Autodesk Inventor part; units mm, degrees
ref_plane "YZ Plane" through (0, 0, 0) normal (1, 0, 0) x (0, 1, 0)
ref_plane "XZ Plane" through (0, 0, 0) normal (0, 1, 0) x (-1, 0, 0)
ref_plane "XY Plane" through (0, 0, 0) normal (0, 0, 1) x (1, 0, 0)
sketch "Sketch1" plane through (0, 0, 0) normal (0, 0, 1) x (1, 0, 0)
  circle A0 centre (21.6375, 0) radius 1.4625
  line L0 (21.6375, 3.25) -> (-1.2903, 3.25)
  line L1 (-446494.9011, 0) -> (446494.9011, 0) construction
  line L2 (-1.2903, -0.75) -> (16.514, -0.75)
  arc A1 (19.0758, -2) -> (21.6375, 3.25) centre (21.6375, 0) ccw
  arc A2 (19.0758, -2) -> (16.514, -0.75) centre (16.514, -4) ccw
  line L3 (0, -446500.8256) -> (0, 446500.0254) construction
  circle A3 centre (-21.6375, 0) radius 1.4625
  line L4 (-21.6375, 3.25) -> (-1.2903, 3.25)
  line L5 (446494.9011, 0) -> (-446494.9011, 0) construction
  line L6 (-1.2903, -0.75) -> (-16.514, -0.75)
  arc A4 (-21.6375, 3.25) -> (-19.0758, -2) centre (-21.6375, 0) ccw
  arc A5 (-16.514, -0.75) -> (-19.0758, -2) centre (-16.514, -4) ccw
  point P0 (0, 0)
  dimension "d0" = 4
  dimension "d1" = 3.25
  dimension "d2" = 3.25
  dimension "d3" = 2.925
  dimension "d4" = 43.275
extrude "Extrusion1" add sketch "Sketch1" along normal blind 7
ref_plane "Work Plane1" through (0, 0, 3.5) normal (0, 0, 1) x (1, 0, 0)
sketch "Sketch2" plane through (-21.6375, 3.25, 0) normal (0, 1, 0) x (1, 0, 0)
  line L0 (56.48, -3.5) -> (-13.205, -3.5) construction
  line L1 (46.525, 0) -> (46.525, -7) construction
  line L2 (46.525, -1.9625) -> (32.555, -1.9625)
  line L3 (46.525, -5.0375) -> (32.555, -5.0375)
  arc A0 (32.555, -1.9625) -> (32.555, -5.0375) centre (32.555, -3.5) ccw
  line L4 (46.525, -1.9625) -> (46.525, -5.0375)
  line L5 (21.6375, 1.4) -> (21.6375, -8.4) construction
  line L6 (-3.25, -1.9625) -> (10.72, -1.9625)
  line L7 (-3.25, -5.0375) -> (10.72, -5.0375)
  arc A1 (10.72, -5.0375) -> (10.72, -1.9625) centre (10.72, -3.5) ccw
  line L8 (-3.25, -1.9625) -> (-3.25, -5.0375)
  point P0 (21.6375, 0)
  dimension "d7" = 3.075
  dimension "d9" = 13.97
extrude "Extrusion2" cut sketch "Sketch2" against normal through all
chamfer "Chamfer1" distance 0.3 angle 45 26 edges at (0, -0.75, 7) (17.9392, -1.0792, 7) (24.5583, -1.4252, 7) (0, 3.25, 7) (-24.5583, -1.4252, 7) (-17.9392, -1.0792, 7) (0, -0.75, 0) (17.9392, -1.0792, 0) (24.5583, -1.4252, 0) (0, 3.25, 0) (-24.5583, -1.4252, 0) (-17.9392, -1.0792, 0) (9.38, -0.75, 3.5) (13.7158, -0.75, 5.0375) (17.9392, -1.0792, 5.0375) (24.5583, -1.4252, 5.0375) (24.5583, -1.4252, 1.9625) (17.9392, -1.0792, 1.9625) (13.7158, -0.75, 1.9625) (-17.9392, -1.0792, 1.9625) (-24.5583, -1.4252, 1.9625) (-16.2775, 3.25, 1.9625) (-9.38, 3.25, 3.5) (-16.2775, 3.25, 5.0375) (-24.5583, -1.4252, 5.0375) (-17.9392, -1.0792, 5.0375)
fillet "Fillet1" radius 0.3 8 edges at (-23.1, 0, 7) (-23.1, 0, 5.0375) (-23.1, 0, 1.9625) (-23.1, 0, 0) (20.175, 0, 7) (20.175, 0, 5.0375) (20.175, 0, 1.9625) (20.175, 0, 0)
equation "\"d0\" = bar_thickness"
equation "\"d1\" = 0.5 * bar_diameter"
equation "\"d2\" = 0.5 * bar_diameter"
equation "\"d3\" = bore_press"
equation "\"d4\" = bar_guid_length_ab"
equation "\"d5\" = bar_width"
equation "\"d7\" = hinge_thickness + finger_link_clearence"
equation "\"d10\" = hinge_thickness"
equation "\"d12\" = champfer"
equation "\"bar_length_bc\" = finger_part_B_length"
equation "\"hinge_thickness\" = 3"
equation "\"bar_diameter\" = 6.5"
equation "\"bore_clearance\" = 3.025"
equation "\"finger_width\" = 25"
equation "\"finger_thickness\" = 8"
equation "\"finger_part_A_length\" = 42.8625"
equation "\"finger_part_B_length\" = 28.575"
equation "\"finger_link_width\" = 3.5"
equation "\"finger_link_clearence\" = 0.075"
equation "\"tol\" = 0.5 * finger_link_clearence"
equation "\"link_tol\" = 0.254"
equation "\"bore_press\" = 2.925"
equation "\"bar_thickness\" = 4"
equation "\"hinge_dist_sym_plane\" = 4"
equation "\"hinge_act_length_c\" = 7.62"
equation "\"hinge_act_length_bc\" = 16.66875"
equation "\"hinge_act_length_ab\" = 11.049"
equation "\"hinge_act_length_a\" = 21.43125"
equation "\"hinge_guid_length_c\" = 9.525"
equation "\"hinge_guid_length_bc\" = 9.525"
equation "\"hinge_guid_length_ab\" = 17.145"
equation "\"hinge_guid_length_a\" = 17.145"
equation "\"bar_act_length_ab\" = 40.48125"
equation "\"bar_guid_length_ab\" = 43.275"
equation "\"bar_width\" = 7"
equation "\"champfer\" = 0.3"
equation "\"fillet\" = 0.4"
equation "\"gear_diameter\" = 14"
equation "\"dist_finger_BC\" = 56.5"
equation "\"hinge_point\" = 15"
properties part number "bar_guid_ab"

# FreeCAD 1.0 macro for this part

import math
import FreeCAD as App
import Part
import Sketcher
from FreeCAD import Vector


def edges_at(feature, points):
    """Names of the edges that pass closest to the given points."""
    edges = feature.Shape.Edges
    near = lambda p: min(range(len(edges)), key=lambda i: edges[i].distToShape(Part.Vertex(*p))[0])
    return sorted({f"Edge{near(p) + 1}" for p in points})

doc = App.newDocument("Part")
params = doc.addObject("Spreadsheet::Sheet", "Params")
for row, (alias, value) in enumerate([
    ("sketch1_radius", "3.25 mm"),
    ("pad1_length", "7 mm"),
    ("sketch2_width", "13.97 mm"),
    ("chamfer_size", "0.3 mm"),
    ("fillet_radius", "0.3 mm"),
], start=1):
    params.set(f"A{row}", alias)
    params.set(f"B{row}", "=" + value)
    params.setAlias(f"B{row}", alias)

body = doc.addObject("PartDesign::Body", "Body")

sketch1 = doc.addObject("Sketcher::SketchObject", "Sketch")
body.addObject(sketch1)
sketch1.AttachmentSupport = (doc.XY_Plane, [""])
sketch1.MapMode = "FlatFace"
sketch1.addGeometry([
    Part.ArcOfCircle(Part.Circle(Vector(21.6, 0, 0), Vector(0, 0, 1), 3.2), math.radians(-142), math.radians(90)),
    Part.LineSegment(Vector(21.6, 3.2, 0), Vector(-21.6, 3.2, 0)),
    Part.ArcOfCircle(Part.Circle(Vector(-21.6, 0, 0), Vector(0, 0, 1), 3.2), math.radians(90), math.radians(322)),
    Part.ArcOfCircle(Part.Circle(Vector(-16.5, -4, 0), Vector(0, 0, 1), 3.2), math.radians(90), math.radians(142)),
    Part.LineSegment(Vector(-16.5, -0.8, 0), Vector(16.5, -0.8, 0)),
    Part.ArcOfCircle(Part.Circle(Vector(16.5, -4, 0), Vector(0, 0, 1), 3.3), math.radians(38), math.radians(90)),
    Part.Circle(Vector(-21.6, 0, 0), Vector(0, 0, 1), 1.5),
    Part.Circle(Vector(21.6, 0, 0), Vector(0, 0, 1), 1.5),
], False)
sketch1.addConstraint([
    Sketcher.Constraint("Tangent", 0, 2, 1, 1),
    Sketcher.Constraint("Tangent", 1, 2, 2, 1),
    Sketcher.Constraint("Tangent", 2, 2, 3, 2),
    Sketcher.Constraint("Tangent", 3, 1, 4, 1),
    Sketcher.Constraint("Tangent", 4, 2, 5, 2),
    Sketcher.Constraint("Tangent", 5, 1, 0, 1),
    Sketcher.Constraint("Horizontal", 1),
    Sketcher.Constraint("Horizontal", 4),
    Sketcher.Constraint("Coincident", 6, 3, 2, 3),
    Sketcher.Constraint("Coincident", 7, 3, 0, 3),
    Sketcher.Constraint("Equal", 0, 2),
    Sketcher.Constraint("Equal", 2, 3),
    Sketcher.Constraint("Equal", 3, 5),
    Sketcher.Constraint("Equal", 6, 7),
    Sketcher.Constraint("Symmetric", 0, 3, 2, 3, -1, 1),
    Sketcher.Constraint("Radius", 0, 3.25),
    Sketcher.Constraint("Diameter", 6, 2.925),
    Sketcher.Constraint("DistanceY", 3, 3, -1, 1, 4.0),
    Sketcher.Constraint("DistanceX", 1, 2, 1, 1, 43.275),
])
sketch1.setExpression("Constraints[15]", "Params.sketch1_radius")
pad1 = doc.addObject("PartDesign::Pad", "Pad")
body.addObject(pad1)
pad1.Profile = sketch1
pad1.setExpression("Length", "Params.pad1_length")

sketch2 = doc.addObject("Sketcher::SketchObject", "Sketch001")
body.addObject(sketch2)
sketch2.AttachmentSupport = (doc.XZ_Plane, [""])
sketch2.MapMode = "FlatFace"
sketch2.AttachmentOffset = App.Placement(Vector(0, 0, -3.25), App.Rotation())
sketch2.addGeometry([
    Part.LineSegment(Vector(24.9, 5, 0), Vector(24.9, 2, 0)),
    Part.LineSegment(Vector(24.9, 2, 0), Vector(10.9, 2, 0)),
    Part.ArcOfCircle(Part.Circle(Vector(10.9, 3.5, 0), Vector(0, 0, 1), 1.5), math.radians(90), math.radians(270)),
    Part.LineSegment(Vector(10.9, 5, 0), Vector(24.9, 5, 0)),
    Part.LineSegment(Vector(-10.9, 2, 0), Vector(-24.9, 2, 0)),
    Part.LineSegment(Vector(-24.9, 2, 0), Vector(-24.9, 5, 0)),
    Part.LineSegment(Vector(-24.9, 5, 0), Vector(-10.9, 5, 0)),
    Part.ArcOfCircle(Part.Circle(Vector(-10.9, 3.5, 0), Vector(0, 0, 1), 1.5), math.radians(-90), math.radians(90)),
], False)
sketch2.addConstraint([
    Sketcher.Constraint("Coincident", 0, 2, 1, 1),
    Sketcher.Constraint("Tangent", 1, 2, 2, 2),
    Sketcher.Constraint("Tangent", 2, 1, 3, 1),
    Sketcher.Constraint("Coincident", 3, 2, 0, 1),
    Sketcher.Constraint("Coincident", 4, 2, 5, 1),
    Sketcher.Constraint("Coincident", 5, 2, 6, 1),
    Sketcher.Constraint("Tangent", 6, 2, 7, 2),
    Sketcher.Constraint("Tangent", 7, 1, 4, 1),
    Sketcher.Constraint("Vertical", 0),
    Sketcher.Constraint("Horizontal", 1),
    Sketcher.Constraint("Horizontal", 3),
    Sketcher.Constraint("Horizontal", 4),
    Sketcher.Constraint("Vertical", 5),
    Sketcher.Constraint("Horizontal", 6),
    Sketcher.Constraint("Equal", 2, 7),
    Sketcher.Constraint("Symmetric", 2, 3, 7, 3, -2),
    Sketcher.Constraint("Equal", 3, 4),
    Sketcher.Constraint("DistanceX", 1, 2, 1, 1, 13.97),
    Sketcher.Constraint("Radius", 2, 1.5375),
    Sketcher.Constraint("DistanceY", -1, 1, 2, 3, 3.5),
    Sketcher.Constraint("DistanceX", 7, 3, 2, 3, 21.835),
])
sketch2.setExpression("Constraints[17]", "Params.sketch2_width")
pocket1 = doc.addObject("PartDesign::Pocket", "Pocket")
body.addObject(pocket1)
pocket1.Profile = sketch2
pocket1.Type = "ThroughAll"
pocket1.Reversed = True
doc.recompute()

chamfer = doc.addObject("PartDesign::Chamfer", "Chamfer")
body.addObject(chamfer)
chamfer.Base = (pocket1, edges_at(pocket1, [
    (0, -0.75, 7),
    (17.939, -1.079, 7),
    (24.558, -1.425, 7),
    (0, 3.25, 7),
    (-24.558, -1.425, 7),
    (-17.939, -1.079, 7),
    (0, -0.75, 0),
    (17.939, -1.079, 0),
    (24.558, -1.425, 0),
    (0, 3.25, 0),
    (-24.558, -1.425, 0),
    (-17.939, -1.079, 0),
    (9.38, -0.75, 3.5),
    (13.716, -0.75, 5.037),
    (17.939, -1.079, 5.037),
    (24.558, -1.425, 5.037),
    (24.558, -1.425, 1.962),
    (17.939, -1.079, 1.962),
    (13.716, -0.75, 1.962),
    (-17.939, -1.079, 1.962),
    (-24.558, -1.425, 1.962),
    (-16.277, 3.25, 1.962),
    (-9.38, 3.25, 3.5),
    (-16.277, 3.25, 5.037),
    (-24.558, -1.425, 5.037),
    (-17.939, -1.079, 5.037),
]))
chamfer.setExpression("Size", "Params.chamfer_size")
doc.recompute()

fillet = doc.addObject("PartDesign::Fillet", "Fillet")
body.addObject(fillet)
fillet.Base = (chamfer, edges_at(chamfer, [
    (-23.1, 0, 7),
    (-23.1, 0, 5.037),
    (-23.1, 0, 1.962),
    (-23.1, 0, 0),
    (20.175, 0, 7),
    (20.175, 0, 5.037),
    (20.175, 0, 1.962),
    (20.175, 0, 0),
]))
fillet.setExpression("Radius", "Params.fillet_radius")

doc.recompute()
